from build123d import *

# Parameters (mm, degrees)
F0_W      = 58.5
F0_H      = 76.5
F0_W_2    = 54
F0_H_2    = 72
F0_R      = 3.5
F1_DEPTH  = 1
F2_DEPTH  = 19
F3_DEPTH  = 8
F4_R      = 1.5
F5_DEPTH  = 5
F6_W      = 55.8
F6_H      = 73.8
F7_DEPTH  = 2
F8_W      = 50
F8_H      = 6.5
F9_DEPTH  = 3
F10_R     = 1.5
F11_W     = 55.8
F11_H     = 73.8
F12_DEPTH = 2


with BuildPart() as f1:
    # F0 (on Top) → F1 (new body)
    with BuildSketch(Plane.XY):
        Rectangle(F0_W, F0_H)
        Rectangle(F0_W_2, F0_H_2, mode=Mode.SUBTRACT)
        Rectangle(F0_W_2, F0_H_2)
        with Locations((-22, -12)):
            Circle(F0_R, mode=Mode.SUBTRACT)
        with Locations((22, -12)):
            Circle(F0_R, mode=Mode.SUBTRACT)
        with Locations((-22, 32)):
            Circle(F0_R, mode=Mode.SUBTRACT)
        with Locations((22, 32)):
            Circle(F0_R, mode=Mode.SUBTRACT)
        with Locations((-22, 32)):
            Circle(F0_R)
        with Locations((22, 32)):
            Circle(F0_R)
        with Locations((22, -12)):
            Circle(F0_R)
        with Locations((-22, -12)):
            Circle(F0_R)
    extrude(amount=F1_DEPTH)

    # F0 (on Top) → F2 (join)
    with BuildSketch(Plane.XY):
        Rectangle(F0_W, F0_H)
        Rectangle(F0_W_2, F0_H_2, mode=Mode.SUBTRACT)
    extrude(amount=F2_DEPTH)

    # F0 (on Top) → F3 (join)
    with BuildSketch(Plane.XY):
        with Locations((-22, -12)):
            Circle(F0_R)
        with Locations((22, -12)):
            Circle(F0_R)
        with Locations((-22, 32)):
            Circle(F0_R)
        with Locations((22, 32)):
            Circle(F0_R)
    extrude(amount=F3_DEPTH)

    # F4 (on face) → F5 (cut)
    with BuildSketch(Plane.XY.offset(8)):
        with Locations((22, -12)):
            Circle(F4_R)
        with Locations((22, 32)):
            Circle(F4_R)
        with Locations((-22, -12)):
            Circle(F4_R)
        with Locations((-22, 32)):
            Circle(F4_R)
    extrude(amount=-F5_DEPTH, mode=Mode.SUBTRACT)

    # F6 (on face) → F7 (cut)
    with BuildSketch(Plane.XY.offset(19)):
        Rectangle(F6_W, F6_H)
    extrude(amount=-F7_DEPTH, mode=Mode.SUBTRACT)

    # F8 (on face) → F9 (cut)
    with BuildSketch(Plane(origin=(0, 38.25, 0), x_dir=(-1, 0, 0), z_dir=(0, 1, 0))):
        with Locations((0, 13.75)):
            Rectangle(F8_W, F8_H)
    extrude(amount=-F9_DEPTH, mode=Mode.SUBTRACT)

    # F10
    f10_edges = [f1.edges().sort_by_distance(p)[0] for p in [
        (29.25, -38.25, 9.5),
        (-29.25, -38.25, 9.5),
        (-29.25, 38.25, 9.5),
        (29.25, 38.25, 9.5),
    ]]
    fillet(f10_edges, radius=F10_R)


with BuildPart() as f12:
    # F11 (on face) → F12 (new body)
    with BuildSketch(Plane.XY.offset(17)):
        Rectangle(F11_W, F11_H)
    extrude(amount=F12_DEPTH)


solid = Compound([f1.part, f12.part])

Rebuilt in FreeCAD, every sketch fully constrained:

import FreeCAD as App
import Part
import Sketcher
from FreeCAD import Vector
Q = App.Units.Quantity


def edges_at(feature, points):
    """Names of the edges that pass closest to the given points."""
    edges = feature.Shape.Edges
    near = lambda p: min(range(len(edges)), key=lambda i: edges[i].distToShape(Part.Vertex(*p))[0])
    return sorted({f"Edge{near(p) + 1}" for p in points})

doc = App.newDocument("Part")
body = doc.addObject("PartDesign::Body", "Body")

# Sketch on XY plane
sketch1 = body.newObject("Sketcher::SketchObject", "Sketch")
sketch1.AttachmentSupport = (doc.getObject("XY_Plane"), [""])
sketch1.MapMode = "FlatFace"
sketch1.addGeometry([
    Part.LineSegment(Vector(-29.25, 38.25, 0), Vector(-29.25, -38.25, 0)),
    Part.LineSegment(Vector(-29.25, -38.25, 0), Vector(29.25, -38.25, 0)),
    Part.LineSegment(Vector(29.25, -38.25, 0), Vector(29.25, 38.25, 0)),
    Part.LineSegment(Vector(29.25, 38.25, 0), Vector(-29.25, 38.25, 0)),
], False)
sketch1.addConstraint([
    Sketcher.Constraint("Coincident", 0, 2, 1, 1),
    Sketcher.Constraint("Coincident", 1, 2, 2, 1),
    Sketcher.Constraint("Coincident", 2, 2, 3, 1),
    Sketcher.Constraint("Coincident", 3, 2, 0, 1),
    Sketcher.Constraint("Vertical", 0),
    Sketcher.Constraint("Horizontal", 1),
    Sketcher.Constraint("Vertical", 2),
    Sketcher.Constraint("Horizontal", 3),
    Sketcher.Constraint("Symmetric", 0, 2, 2, 2, -1, 1),
    Sketcher.Constraint("DistanceX", 1, 1, 1, 2, Q("58.5 mm")),
    Sketcher.Constraint("DistanceY", 0, 2, 0, 1, Q("76.5 mm")),
])
pad1 = body.newObject("PartDesign::Pad", "Pad")
pad1.Profile = sketch1
pad1.Length = 1

# Sketch on XY plane
sketch2 = body.newObject("Sketcher::SketchObject", "Sketch001")
sketch2.AttachmentSupport = (doc.getObject("XY_Plane"), [""])
sketch2.MapMode = "FlatFace"
sketch2.addGeometry([
    Part.LineSegment(Vector(-29.25, 38.25, 0), Vector(-29.25, -38.25, 0)),  # 0
    Part.LineSegment(Vector(-29.25, -38.25, 0), Vector(29.25, -38.25, 0)),  # 1
    Part.LineSegment(Vector(29.25, -38.25, 0), Vector(29.25, 38.25, 0)),  # 2
    Part.LineSegment(Vector(29.25, 38.25, 0), Vector(-29.25, 38.25, 0)),  # 3
    Part.LineSegment(Vector(27, -36, 0), Vector(-27, -36, 0)),  # 4
    Part.LineSegment(Vector(-27, -36, 0), Vector(-27, 36, 0)),  # 5
    Part.LineSegment(Vector(-27, 36, 0), Vector(27, 36, 0)),  # 6
    Part.LineSegment(Vector(27, 36, 0), Vector(27, -36, 0)),  # 7
], False)
sketch2.addConstraint([
    Sketcher.Constraint("Coincident", 0, 2, 1, 1),
    Sketcher.Constraint("Coincident", 1, 2, 2, 1),
    Sketcher.Constraint("Coincident", 2, 2, 3, 1),
    Sketcher.Constraint("Coincident", 3, 2, 0, 1),
    Sketcher.Constraint("Coincident", 4, 2, 5, 1),
    Sketcher.Constraint("Coincident", 5, 2, 6, 1),
    Sketcher.Constraint("Coincident", 6, 2, 7, 1),
    Sketcher.Constraint("Coincident", 7, 2, 4, 1),
    Sketcher.Constraint("Vertical", 0),
    Sketcher.Constraint("Horizontal", 1),
    Sketcher.Constraint("Vertical", 2),
    Sketcher.Constraint("Horizontal", 3),
    Sketcher.Constraint("Horizontal", 4),
    Sketcher.Constraint("Vertical", 5),
    Sketcher.Constraint("Horizontal", 6),
    Sketcher.Constraint("Vertical", 7),
    Sketcher.Constraint("Symmetric", 0, 2, 2, 2, -1, 1),
    Sketcher.Constraint("Symmetric", 4, 2, 6, 2, -1, 1),
    Sketcher.Constraint("DistanceX", 4, 2, 4, 1, Q("54 mm")),
    Sketcher.Constraint("DistanceY", 5, 1, 5, 2, Q("72 mm")),
    Sketcher.Constraint("DistanceX", 1, 1, 1, 2, Q("58.5 mm")),
    Sketcher.Constraint("DistanceY", 0, 2, 0, 1, Q("76.5 mm")),
])
pad2 = body.newObject("PartDesign::Pad", "Pad001")
pad2.Profile = sketch2
pad2.Length = 19

# Sketch on XY plane
sketch3 = body.newObject("Sketcher::SketchObject", "Sketch002")
sketch3.AttachmentSupport = (doc.getObject("XY_Plane"), [""])
sketch3.MapMode = "FlatFace"
sketch3.addGeometry([
    Part.Circle(Vector(-22, -12, 0), Vector(0, 0, 1), 3.5),
    Part.Circle(Vector(22, -12, 0), Vector(0, 0, 1), 3.5),
    Part.Circle(Vector(-22, 32, 0), Vector(0, 0, 1), 3.5),
    Part.Circle(Vector(22, 32, 0), Vector(0, 0, 1), 3.5),
], False)
sketch3.addConstraint([
    Sketcher.Constraint("Equal", 0, 1),
    Sketcher.Constraint("Equal", 1, 2),
    Sketcher.Constraint("Equal", 2, 3),
    Sketcher.Constraint("Symmetric", 0, 3, 1, 3, -2),
    Sketcher.Constraint("Symmetric", 2, 3, 3, 3, -2),
    Sketcher.Constraint("Vertical", 0, 3, 2, 3),
    Sketcher.Constraint("Diameter", 0, Q("7 mm")),
    Sketcher.Constraint("DistanceX", 0, 3, -1, 1, Q("22 mm")),
    Sketcher.Constraint("DistanceY", 0, 3, -1, 1, Q("12 mm")),
    Sketcher.Constraint("DistanceY", -1, 1, 2, 3, Q("32 mm")),
])
pad3 = body.newObject("PartDesign::Pad", "Pad002")
pad3.Profile = sketch3
pad3.Length = 8

# Sketch on XY plane
sketch4 = body.newObject("Sketcher::SketchObject", "Sketch003")
sketch4.AttachmentSupport = (doc.getObject("XY_Plane"), [""])
sketch4.MapMode = "FlatFace"
sketch4.AttachmentOffset = App.Placement(Vector(0, 0, 8), App.Rotation())
sketch4.addGeometry([
    Part.Circle(Vector(22, -12, 0), Vector(0, 0, 1), 1.5),
    Part.Circle(Vector(22, 32, 0), Vector(0, 0, 1), 1.5),
    Part.Circle(Vector(-22, -12, 0), Vector(0, 0, 1), 1.5),
    Part.Circle(Vector(-22, 32, 0), Vector(0, 0, 1), 1.5),
], False)
sketch4.addConstraint([
    Sketcher.Constraint("Equal", 0, 1),
    Sketcher.Constraint("Equal", 1, 2),
    Sketcher.Constraint("Equal", 2, 3),
    Sketcher.Constraint("Symmetric", 0, 3, 2, 3, -2),
    Sketcher.Constraint("Symmetric", 1, 3, 3, 3, -2),
    Sketcher.Constraint("Vertical", 0, 3, 1, 3),
    Sketcher.Constraint("Diameter", 0, Q("3 mm")),
    Sketcher.Constraint("DistanceX", -1, 1, 0, 3, Q("22 mm")),
    Sketcher.Constraint("DistanceY", 0, 3, -1, 1, Q("12 mm")),
    Sketcher.Constraint("DistanceY", -1, 1, 1, 3, Q("32 mm")),
])
pocket1 = body.newObject("PartDesign::Pocket", "Pocket")
pocket1.Profile = sketch4
pocket1.Length = 5

# Sketch on XY plane
sketch5 = body.newObject("Sketcher::SketchObject", "Sketch004")
sketch5.AttachmentSupport = (doc.getObject("XY_Plane"), [""])
sketch5.MapMode = "FlatFace"
sketch5.AttachmentOffset = App.Placement(Vector(0, 0, 19), App.Rotation())
sketch5.addGeometry([
    Part.LineSegment(Vector(-27.9, 36.9, 0), Vector(-27.9, -36.9, 0)),
    Part.LineSegment(Vector(-27.9, -36.9, 0), Vector(27.9, -36.9, 0)),
    Part.LineSegment(Vector(27.9, -36.9, 0), Vector(27.9, 36.9, 0)),
    Part.LineSegment(Vector(27.9, 36.9, 0), Vector(-27.9, 36.9, 0)),
], False)
sketch5.addConstraint([
    Sketcher.Constraint("Coincident", 0, 2, 1, 1),
    Sketcher.Constraint("Coincident", 1, 2, 2, 1),
    Sketcher.Constraint("Coincident", 2, 2, 3, 1),
    Sketcher.Constraint("Coincident", 3, 2, 0, 1),
    Sketcher.Constraint("Vertical", 0),
    Sketcher.Constraint("Horizontal", 1),
    Sketcher.Constraint("Vertical", 2),
    Sketcher.Constraint("Horizontal", 3),
    Sketcher.Constraint("Symmetric", 0, 2, 2, 2, -1, 1),
    Sketcher.Constraint("DistanceX", 1, 1, 1, 2, Q("55.8 mm")),
    Sketcher.Constraint("DistanceY", 0, 2, 0, 1, Q("73.8 mm")),
])
pocket2 = body.newObject("PartDesign::Pocket", "Pocket001")
pocket2.Profile = sketch5
pocket2.Length = 2

# Sketch on XZ plane
sketch6 = body.newObject("Sketcher::SketchObject", "Sketch005")
sketch6.AttachmentSupport = (doc.getObject("XZ_Plane"), [""])
sketch6.MapMode = "FlatFace"
sketch6.AttachmentOffset = App.Placement(Vector(0, 0, -38.25), App.Rotation())
sketch6.addGeometry([
    Part.LineSegment(Vector(25, 17, 0), Vector(25, 10.5, 0)),
    Part.LineSegment(Vector(25, 10.5, 0), Vector(-25, 10.5, 0)),
    Part.LineSegment(Vector(-25, 10.5, 0), Vector(-25, 17, 0)),
    Part.LineSegment(Vector(-25, 17, 0), Vector(25, 17, 0)),
], False)
sketch6.addConstraint([
    Sketcher.Constraint("Coincident", 0, 2, 1, 1),
    Sketcher.Constraint("Coincident", 1, 2, 2, 1),
    Sketcher.Constraint("Coincident", 2, 2, 3, 1),
    Sketcher.Constraint("Coincident", 3, 2, 0, 1),
    Sketcher.Constraint("Vertical", 0),
    Sketcher.Constraint("Horizontal", 1),
    Sketcher.Constraint("Vertical", 2),
    Sketcher.Constraint("Horizontal", 3),
    Sketcher.Constraint("DistanceX", 1, 2, 1, 1, Q("50 mm")),
    Sketcher.Constraint("DistanceY", 0, 2, 0, 1, Q("6.5 mm")),
    Sketcher.Constraint("DistanceX", -1, 1, 0, 2, Q("25 mm")),
    Sketcher.Constraint("DistanceY", -1, 1, 2, 2, Q("17 mm")),
])
pocket3 = body.newObject("PartDesign::Pocket", "Pocket002")
pocket3.Profile = sketch6
pocket3.Length = 3
pocket3.Reversed = True
doc.recompute()

fillet = body.newObject("PartDesign::Fillet", "Fillet")
fillet.Base = (pocket3, edges_at(pocket3, [
    (29.25, -38.25, 9.5),
    (-29.25, -38.25, 9.5),
    (-29.25, 38.25, 9.5),
    (29.25, 38.25, 9.5),
]))
fillet.Radius = 1.5
body2 = doc.addObject("PartDesign::Body", "Body001")

# Sketch on XY plane
sketch7 = body2.newObject("Sketcher::SketchObject", "Sketch006")
sketch7.AttachmentSupport = (doc.getObject("XY_Plane001"), [""])
sketch7.MapMode = "FlatFace"
sketch7.AttachmentOffset = App.Placement(Vector(0, 0, 17), App.Rotation())
sketch7.addGeometry([
    Part.LineSegment(Vector(-27.9, 36.9, 0), Vector(-27.9, -36.9, 0)),
    Part.LineSegment(Vector(-27.9, -36.9, 0), Vector(27.9, -36.9, 0)),
    Part.LineSegment(Vector(27.9, -36.9, 0), Vector(27.9, 36.9, 0)),
    Part.LineSegment(Vector(27.9, 36.9, 0), Vector(-27.9, 36.9, 0)),
], False)
sketch7.addConstraint([
    Sketcher.Constraint("Coincident", 0, 2, 1, 1),
    Sketcher.Constraint("Coincident", 1, 2, 2, 1),
    Sketcher.Constraint("Coincident", 2, 2, 3, 1),
    Sketcher.Constraint("Coincident", 3, 2, 0, 1),
    Sketcher.Constraint("Vertical", 0),
    Sketcher.Constraint("Horizontal", 1),
    Sketcher.Constraint("Vertical", 2),
    Sketcher.Constraint("Horizontal", 3),
    Sketcher.Constraint("Symmetric", 0, 2, 2, 2, -1, 1),
    Sketcher.Constraint("DistanceX", 1, 1, 1, 2, Q("55.8 mm")),
    Sketcher.Constraint("DistanceY", 0, 2, 0, 1, Q("73.8 mm")),
])
pad4 = body2.newObject("PartDesign::Pad", "Pad003")
pad4.Profile = sketch7
pad4.Length = 2

doc.recompute()
